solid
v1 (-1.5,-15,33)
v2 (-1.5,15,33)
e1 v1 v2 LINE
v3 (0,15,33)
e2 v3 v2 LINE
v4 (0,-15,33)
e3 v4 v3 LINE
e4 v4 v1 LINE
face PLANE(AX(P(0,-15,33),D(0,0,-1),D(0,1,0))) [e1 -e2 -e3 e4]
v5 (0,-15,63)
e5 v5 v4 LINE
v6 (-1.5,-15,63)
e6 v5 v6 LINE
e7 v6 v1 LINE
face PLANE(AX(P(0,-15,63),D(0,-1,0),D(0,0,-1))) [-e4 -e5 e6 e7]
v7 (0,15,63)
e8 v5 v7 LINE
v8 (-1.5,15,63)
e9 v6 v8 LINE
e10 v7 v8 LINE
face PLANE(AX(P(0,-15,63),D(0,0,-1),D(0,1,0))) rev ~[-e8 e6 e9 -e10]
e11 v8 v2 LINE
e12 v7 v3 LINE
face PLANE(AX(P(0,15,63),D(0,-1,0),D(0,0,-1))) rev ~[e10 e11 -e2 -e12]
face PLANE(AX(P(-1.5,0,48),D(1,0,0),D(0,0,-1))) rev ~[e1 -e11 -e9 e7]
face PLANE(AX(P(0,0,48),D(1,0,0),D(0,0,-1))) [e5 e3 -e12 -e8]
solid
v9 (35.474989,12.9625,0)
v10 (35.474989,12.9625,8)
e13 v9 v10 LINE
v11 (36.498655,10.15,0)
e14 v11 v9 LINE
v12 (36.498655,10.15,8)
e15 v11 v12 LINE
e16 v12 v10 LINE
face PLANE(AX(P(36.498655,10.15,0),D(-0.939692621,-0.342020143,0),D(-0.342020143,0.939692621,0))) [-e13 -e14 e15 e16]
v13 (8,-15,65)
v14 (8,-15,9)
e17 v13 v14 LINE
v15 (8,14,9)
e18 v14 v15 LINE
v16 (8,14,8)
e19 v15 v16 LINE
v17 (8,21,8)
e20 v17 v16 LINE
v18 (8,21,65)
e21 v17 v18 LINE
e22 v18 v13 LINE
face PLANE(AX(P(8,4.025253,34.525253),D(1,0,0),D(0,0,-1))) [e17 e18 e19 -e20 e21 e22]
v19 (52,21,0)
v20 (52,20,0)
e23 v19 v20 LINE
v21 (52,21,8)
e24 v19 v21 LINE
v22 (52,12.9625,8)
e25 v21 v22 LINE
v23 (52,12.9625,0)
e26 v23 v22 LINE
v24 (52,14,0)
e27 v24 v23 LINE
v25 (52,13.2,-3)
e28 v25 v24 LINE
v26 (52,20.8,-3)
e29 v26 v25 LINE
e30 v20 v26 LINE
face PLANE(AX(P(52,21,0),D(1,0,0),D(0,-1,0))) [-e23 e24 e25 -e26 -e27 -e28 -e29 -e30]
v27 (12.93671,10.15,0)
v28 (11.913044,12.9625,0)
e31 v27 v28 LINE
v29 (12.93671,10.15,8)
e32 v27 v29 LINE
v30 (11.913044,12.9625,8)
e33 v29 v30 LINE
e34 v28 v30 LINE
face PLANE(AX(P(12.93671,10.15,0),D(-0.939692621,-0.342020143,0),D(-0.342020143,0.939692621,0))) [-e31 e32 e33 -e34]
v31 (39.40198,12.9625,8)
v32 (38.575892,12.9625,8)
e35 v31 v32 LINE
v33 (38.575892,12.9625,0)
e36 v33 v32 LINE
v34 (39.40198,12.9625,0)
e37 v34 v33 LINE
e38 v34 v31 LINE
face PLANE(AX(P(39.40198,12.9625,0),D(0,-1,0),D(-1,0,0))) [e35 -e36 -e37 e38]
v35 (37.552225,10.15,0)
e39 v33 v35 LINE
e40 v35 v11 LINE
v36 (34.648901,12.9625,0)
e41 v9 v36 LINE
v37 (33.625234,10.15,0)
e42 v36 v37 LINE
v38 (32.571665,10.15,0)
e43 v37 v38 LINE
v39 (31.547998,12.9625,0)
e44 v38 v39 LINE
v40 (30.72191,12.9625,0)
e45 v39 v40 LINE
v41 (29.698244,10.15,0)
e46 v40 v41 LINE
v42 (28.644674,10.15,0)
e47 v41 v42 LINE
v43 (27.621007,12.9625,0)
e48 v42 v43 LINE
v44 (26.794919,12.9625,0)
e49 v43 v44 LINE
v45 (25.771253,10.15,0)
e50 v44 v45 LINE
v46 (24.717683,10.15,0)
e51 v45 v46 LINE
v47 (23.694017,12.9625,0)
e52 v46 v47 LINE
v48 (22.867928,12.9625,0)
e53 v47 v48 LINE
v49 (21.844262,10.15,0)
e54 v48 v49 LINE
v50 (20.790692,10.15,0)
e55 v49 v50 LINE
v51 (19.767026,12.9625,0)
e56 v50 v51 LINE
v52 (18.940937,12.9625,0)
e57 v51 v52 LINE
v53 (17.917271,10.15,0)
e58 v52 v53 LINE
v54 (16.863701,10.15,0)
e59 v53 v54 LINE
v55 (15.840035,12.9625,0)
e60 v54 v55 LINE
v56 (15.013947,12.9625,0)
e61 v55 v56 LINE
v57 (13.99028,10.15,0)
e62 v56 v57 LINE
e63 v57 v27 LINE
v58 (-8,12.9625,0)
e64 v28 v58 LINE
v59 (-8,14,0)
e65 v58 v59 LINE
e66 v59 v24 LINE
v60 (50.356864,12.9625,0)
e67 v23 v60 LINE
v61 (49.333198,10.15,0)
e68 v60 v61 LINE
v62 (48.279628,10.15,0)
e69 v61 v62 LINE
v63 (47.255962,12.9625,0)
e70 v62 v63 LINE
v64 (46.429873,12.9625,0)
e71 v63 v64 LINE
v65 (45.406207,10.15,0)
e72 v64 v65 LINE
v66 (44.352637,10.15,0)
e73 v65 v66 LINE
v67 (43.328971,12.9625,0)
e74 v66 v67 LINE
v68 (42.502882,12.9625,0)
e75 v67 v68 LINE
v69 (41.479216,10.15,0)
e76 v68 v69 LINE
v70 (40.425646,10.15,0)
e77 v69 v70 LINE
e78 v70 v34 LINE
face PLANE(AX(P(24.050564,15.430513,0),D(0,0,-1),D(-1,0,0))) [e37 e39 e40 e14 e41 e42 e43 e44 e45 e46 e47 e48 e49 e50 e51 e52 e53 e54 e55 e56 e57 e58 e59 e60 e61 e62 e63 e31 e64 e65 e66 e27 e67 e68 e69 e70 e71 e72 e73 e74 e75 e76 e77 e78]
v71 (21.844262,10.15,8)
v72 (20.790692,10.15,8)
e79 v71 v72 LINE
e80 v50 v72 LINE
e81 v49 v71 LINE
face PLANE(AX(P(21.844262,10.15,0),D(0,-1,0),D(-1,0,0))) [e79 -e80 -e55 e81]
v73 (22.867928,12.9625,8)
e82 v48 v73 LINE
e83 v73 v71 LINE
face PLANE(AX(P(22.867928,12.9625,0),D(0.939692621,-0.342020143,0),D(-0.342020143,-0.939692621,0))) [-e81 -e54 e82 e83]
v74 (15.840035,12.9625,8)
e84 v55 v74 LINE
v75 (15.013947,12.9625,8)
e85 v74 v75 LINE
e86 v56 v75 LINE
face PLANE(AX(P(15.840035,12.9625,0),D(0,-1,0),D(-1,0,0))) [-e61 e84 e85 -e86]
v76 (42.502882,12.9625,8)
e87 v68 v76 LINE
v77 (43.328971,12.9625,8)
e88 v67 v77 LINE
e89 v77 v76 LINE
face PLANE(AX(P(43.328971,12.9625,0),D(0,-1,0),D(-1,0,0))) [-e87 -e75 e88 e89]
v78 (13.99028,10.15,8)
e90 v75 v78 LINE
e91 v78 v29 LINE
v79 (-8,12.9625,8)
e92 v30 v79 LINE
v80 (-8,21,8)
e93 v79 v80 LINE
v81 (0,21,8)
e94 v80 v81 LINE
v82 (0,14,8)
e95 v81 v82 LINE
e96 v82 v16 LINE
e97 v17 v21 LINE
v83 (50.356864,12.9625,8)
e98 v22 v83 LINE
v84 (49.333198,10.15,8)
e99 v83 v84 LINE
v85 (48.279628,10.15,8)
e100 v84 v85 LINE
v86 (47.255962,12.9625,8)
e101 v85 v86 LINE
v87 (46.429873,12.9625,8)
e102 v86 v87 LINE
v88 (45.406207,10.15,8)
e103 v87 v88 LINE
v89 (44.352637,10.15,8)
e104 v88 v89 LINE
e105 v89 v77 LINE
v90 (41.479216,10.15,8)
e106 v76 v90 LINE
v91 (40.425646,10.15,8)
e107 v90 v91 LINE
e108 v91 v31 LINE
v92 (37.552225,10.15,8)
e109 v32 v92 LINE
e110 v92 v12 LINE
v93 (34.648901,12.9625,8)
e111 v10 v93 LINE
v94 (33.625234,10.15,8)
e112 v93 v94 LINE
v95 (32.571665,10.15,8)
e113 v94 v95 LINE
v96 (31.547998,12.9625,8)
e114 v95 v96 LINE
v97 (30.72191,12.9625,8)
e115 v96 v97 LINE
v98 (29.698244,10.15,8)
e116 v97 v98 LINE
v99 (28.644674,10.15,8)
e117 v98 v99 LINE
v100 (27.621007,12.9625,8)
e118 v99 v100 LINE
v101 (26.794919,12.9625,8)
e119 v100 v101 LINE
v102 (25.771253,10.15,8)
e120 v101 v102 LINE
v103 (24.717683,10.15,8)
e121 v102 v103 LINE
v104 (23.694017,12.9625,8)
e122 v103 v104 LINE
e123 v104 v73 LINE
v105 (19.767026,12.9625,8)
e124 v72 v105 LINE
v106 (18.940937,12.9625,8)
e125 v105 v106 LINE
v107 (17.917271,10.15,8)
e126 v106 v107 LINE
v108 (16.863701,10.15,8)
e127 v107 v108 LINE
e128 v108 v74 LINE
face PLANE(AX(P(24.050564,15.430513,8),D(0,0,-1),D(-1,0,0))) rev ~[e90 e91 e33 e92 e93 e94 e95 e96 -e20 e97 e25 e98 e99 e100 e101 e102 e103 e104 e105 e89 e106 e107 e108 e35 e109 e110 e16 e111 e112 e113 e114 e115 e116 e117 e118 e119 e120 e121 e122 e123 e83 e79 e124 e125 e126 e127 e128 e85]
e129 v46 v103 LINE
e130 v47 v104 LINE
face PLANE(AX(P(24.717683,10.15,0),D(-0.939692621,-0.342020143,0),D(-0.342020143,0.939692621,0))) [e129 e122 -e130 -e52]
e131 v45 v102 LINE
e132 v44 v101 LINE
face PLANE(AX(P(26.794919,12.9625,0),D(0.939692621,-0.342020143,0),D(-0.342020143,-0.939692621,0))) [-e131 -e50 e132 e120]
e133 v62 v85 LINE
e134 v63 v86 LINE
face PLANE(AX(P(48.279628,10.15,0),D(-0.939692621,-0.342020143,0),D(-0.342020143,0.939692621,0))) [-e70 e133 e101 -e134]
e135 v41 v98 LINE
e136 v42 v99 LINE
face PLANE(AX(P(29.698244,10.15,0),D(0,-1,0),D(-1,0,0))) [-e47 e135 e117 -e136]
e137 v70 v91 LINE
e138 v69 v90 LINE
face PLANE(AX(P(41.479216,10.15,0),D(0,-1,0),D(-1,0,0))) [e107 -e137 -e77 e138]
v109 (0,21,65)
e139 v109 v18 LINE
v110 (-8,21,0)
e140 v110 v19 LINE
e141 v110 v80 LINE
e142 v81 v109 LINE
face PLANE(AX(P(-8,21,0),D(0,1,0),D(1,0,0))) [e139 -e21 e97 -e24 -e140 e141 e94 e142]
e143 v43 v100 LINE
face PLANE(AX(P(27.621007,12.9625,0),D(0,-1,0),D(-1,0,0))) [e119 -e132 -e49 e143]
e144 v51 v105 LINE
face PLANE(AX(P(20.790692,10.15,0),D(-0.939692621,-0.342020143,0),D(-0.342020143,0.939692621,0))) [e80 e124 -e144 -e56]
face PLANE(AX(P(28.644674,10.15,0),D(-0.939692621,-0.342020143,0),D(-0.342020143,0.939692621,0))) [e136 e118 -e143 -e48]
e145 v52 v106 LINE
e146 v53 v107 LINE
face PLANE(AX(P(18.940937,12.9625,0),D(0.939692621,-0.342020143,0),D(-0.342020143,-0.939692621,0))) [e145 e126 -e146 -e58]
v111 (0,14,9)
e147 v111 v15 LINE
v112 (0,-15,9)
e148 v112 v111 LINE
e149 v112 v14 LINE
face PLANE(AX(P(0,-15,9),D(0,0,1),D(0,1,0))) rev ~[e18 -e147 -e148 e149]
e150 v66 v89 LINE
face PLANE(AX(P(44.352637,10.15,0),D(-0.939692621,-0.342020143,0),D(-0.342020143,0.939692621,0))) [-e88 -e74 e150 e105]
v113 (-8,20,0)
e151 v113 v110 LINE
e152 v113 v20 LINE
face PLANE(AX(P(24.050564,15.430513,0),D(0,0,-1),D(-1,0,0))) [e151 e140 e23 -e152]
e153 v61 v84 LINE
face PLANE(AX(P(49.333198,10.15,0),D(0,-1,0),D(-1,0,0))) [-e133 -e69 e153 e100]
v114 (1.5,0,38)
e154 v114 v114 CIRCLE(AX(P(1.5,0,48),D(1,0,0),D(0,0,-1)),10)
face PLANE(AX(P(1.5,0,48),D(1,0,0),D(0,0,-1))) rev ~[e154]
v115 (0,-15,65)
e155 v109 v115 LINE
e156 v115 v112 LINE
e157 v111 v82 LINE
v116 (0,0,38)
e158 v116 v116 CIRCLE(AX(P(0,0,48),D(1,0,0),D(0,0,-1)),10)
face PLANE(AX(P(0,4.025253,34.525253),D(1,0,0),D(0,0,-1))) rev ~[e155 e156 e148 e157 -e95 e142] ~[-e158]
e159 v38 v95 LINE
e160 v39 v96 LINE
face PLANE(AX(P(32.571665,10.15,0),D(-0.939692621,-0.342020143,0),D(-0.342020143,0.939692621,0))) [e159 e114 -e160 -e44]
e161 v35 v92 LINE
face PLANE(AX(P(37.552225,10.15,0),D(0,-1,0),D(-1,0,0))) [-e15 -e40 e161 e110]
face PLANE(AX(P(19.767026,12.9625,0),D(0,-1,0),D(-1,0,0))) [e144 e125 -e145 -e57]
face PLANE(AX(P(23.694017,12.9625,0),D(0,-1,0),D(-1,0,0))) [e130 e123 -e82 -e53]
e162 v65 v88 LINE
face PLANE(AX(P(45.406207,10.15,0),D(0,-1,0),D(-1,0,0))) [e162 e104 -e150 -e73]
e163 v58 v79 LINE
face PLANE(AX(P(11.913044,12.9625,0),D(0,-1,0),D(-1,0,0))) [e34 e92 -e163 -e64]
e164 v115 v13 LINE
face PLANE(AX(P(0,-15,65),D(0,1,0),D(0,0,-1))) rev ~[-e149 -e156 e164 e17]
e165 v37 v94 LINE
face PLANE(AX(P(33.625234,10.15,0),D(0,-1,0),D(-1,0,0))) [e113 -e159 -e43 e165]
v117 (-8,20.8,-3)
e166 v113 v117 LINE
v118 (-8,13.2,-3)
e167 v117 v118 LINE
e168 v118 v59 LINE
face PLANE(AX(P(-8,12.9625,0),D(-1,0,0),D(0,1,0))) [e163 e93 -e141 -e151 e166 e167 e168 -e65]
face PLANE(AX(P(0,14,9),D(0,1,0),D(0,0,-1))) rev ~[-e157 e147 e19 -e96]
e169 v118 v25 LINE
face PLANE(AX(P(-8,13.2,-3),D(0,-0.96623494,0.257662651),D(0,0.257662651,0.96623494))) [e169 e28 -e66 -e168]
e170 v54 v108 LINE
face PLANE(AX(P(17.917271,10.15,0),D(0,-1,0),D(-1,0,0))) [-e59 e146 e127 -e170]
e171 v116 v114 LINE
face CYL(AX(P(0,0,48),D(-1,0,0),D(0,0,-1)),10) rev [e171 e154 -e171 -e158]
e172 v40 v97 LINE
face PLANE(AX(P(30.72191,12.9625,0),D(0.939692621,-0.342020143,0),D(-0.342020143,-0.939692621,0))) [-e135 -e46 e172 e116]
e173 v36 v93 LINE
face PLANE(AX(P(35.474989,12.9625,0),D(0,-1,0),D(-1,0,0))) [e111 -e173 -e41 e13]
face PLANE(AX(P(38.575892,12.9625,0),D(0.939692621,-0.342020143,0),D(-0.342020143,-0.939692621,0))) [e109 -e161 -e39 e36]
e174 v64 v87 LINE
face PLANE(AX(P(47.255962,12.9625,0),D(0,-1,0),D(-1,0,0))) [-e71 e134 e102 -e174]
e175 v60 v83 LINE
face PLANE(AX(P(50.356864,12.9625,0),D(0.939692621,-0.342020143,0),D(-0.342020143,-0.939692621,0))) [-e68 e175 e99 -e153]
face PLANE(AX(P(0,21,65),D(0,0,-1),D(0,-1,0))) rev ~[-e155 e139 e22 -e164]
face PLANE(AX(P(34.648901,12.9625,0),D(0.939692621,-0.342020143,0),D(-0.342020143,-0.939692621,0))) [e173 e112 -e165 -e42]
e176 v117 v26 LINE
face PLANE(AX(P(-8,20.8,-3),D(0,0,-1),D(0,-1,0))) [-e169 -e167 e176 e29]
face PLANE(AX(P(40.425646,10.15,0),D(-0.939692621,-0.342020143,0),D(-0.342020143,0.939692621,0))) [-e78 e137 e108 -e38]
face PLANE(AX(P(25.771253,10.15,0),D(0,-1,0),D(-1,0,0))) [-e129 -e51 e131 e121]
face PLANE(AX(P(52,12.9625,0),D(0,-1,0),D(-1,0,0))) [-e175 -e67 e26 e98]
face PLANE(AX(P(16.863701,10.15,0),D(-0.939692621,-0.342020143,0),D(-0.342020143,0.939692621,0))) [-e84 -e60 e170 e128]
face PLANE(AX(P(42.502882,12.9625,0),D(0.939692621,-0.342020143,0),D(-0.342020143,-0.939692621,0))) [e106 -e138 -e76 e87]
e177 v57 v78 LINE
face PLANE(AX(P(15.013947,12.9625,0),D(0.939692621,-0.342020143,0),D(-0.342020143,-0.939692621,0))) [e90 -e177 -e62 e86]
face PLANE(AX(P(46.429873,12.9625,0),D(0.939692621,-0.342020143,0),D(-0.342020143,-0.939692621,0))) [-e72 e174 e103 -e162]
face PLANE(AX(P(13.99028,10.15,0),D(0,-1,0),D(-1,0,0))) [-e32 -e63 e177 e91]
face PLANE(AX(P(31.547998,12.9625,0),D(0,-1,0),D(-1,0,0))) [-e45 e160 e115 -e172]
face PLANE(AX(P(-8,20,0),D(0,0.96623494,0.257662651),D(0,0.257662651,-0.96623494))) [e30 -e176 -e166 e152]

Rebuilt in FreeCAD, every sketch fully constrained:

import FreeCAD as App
import Part
import Sketcher

V = App.Vector
Q = App.Units.Quantity


def add_polygon(sketch, points):
    """Adds a closed chain of lines whose ends are joined by coincident constraints."""
    first, n = sketch.GeometryCount, len(points)
    for a, b in zip(points, points[1:] + points[:1]):
        sketch.addGeometry(Part.LineSegment(App.Vector(*a, 0), App.Vector(*b, 0)), False)
    for i in range(n):
        sketch.addConstraint(Sketcher.Constraint("Coincident", first + i, 2, first + (i + 1) % n, 1))

doc = App.newDocument("Part")
body = doc.addObject("PartDesign::Body", "Body")

# Sketch on XY plane
sketch1 = body.newObject("Sketcher::SketchObject", "Sketch")
sketch1.AttachmentSupport = (doc.getObject("XY_Plane"), [""])
sketch1.MapMode = "FlatFace"
add_polygon(sketch1, [(52, 21), (-8, 21), (-8, 13), (11.9, 13), (12.9, 10.2), (14, 10.2), (15, 13), (15.8, 13), (16.9, 10.2), (17.9, 10.2), (18.9, 13), (19.8, 13), (20.8, 10.2), (21.8, 10.2), (22.9, 13), (23.7, 13), (24.7, 10.2), (25.8, 10.2), (26.8, 13), (27.6, 13), (28.6, 10.2), (29.7, 10.2), (30.7, 13), (31.5, 13), (32.6, 10.2), (33.6, 10.2), (34.6, 13), (35.5, 13), (36.5, 10.2), (37.6, 10.2), (38.6, 13), (39.4, 13), (40.4, 10.2), (41.5, 10.2), (42.5, 13), (43.3, 13), (44.4, 10.2), (45.4, 10.2), (46.4, 13), (47.3, 13), (48.3, 10.2), (49.3, 10.2), (50.4, 13), (52, 13)])  # lines 0-43
sketch1.addConstraint(Sketcher.Constraint("Horizontal", 0))
sketch1.addConstraint(Sketcher.Constraint("Vertical", 1))
sketch1.addConstraint(Sketcher.Constraint("Horizontal", 2))
sketch1.addConstraint(Sketcher.Constraint("Horizontal", 4))
sketch1.addConstraint(Sketcher.Constraint("Horizontal", 6))
sketch1.addConstraint(Sketcher.Constraint("Horizontal", 8))
sketch1.addConstraint(Sketcher.Constraint("Horizontal", 10))
sketch1.addConstraint(Sketcher.Constraint("Horizontal", 12))
sketch1.addConstraint(Sketcher.Constraint("Horizontal", 14))
sketch1.addConstraint(Sketcher.Constraint("Horizontal", 16))
sketch1.addConstraint(Sketcher.Constraint("Horizontal", 18))
sketch1.addConstraint(Sketcher.Constraint("Horizontal", 20))
sketch1.addConstraint(Sketcher.Constraint("Horizontal", 22))
sketch1.addConstraint(Sketcher.Constraint("Horizontal", 24))
sketch1.addConstraint(Sketcher.Constraint("Horizontal", 26))
sketch1.addConstraint(Sketcher.Constraint("Horizontal", 28))
sketch1.addConstraint(Sketcher.Constraint("Horizontal", 30))
sketch1.addConstraint(Sketcher.Constraint("Horizontal", 32))
sketch1.addConstraint(Sketcher.Constraint("Horizontal", 34))
sketch1.addConstraint(Sketcher.Constraint("Horizontal", 36))
sketch1.addConstraint(Sketcher.Constraint("Horizontal", 38))
sketch1.addConstraint(Sketcher.Constraint("Horizontal", 40))
sketch1.addConstraint(Sketcher.Constraint("Horizontal", 42))
sketch1.addConstraint(Sketcher.Constraint("Vertical", 43))
sketch1.addConstraint(Sketcher.Constraint("Parallel", 3, 7))
sketch1.addConstraint(Sketcher.Constraint("Parallel", 5, 9))
sketch1.addConstraint(Sketcher.Constraint("Parallel", 7, 11))
sketch1.addConstraint(Sketcher.Constraint("Parallel", 9, 13))
sketch1.addConstraint(Sketcher.Constraint("Parallel", 11, 15))
sketch1.addConstraint(Sketcher.Constraint("Parallel", 13, 17))
sketch1.addConstraint(Sketcher.Constraint("Parallel", 15, 19))
sketch1.addConstraint(Sketcher.Constraint("Parallel", 17, 21))
sketch1.addConstraint(Sketcher.Constraint("Parallel", 19, 23))
sketch1.addConstraint(Sketcher.Constraint("Parallel", 21, 25))
sketch1.addConstraint(Sketcher.Constraint("Parallel", 23, 27))
sketch1.addConstraint(Sketcher.Constraint("Parallel", 25, 29))
sketch1.addConstraint(Sketcher.Constraint("Parallel", 27, 31))
sketch1.addConstraint(Sketcher.Constraint("Parallel", 29, 33))
sketch1.addConstraint(Sketcher.Constraint("Parallel", 31, 35))
sketch1.addConstraint(Sketcher.Constraint("Parallel", 33, 37))
sketch1.addConstraint(Sketcher.Constraint("Parallel", 35, 39))
sketch1.addConstraint(Sketcher.Constraint("Parallel", 37, 41))
sketch1.addConstraint(Sketcher.Constraint("Horizontal", 2, 2, 5, 2))
sketch1.addConstraint(Sketcher.Constraint("Horizontal", 4, 2, 7, 2))
sketch1.addConstraint(Sketcher.Constraint("Horizontal", 6, 2, 9, 2))
sketch1.addConstraint(Sketcher.Constraint("Horizontal", 8, 2, 11, 2))
sketch1.addConstraint(Sketcher.Constraint("Horizontal", 10, 2, 13, 2))
sketch1.addConstraint(Sketcher.Constraint("Horizontal", 12, 2, 15, 2))
sketch1.addConstraint(Sketcher.Constraint("Horizontal", 14, 2, 17, 2))
sketch1.addConstraint(Sketcher.Constraint("Horizontal", 16, 2, 19, 2))
sketch1.addConstraint(Sketcher.Constraint("Horizontal", 18, 2, 21, 2))
sketch1.addConstraint(Sketcher.Constraint("Horizontal", 20, 2, 23, 2))
sketch1.addConstraint(Sketcher.Constraint("Horizontal", 22, 2, 25, 2))
sketch1.addConstraint(Sketcher.Constraint("Horizontal", 24, 2, 27, 2))
sketch1.addConstraint(Sketcher.Constraint("Horizontal", 26, 2, 29, 2))
sketch1.addConstraint(Sketcher.Constraint("Horizontal", 28, 2, 31, 2))
sketch1.addConstraint(Sketcher.Constraint("Horizontal", 30, 2, 33, 2))
sketch1.addConstraint(Sketcher.Constraint("Horizontal", 32, 2, 35, 2))
sketch1.addConstraint(Sketcher.Constraint("Horizontal", 34, 2, 37, 2))
sketch1.addConstraint(Sketcher.Constraint("Horizontal", 36, 2, 39, 2))
sketch1.addConstraint(Sketcher.Constraint("Horizontal", 38, 2, 41, 2))
sketch1.addConstraint(Sketcher.Constraint("Equal", 4, 8))
sketch1.addConstraint(Sketcher.Constraint("Equal", 6, 10))
sketch1.addConstraint(Sketcher.Constraint("Equal", 8, 12))
sketch1.addConstraint(Sketcher.Constraint("Equal", 10, 14))
sketch1.addConstraint(Sketcher.Constraint("Equal", 12, 16))
sketch1.addConstraint(Sketcher.Constraint("Equal", 14, 18))
sketch1.addConstraint(Sketcher.Constraint("Equal", 16, 20))
sketch1.addConstraint(Sketcher.Constraint("Equal", 18, 22))
sketch1.addConstraint(Sketcher.Constraint("Equal", 20, 24))
sketch1.addConstraint(Sketcher.Constraint("Equal", 22, 26))
sketch1.addConstraint(Sketcher.Constraint("Equal", 24, 28))
sketch1.addConstraint(Sketcher.Constraint("Equal", 26, 30))
sketch1.addConstraint(Sketcher.Constraint("Equal", 28, 32))
sketch1.addConstraint(Sketcher.Constraint("Equal", 30, 34))
sketch1.addConstraint(Sketcher.Constraint("Equal", 32, 36))
sketch1.addConstraint(Sketcher.Constraint("Equal", 34, 38))
sketch1.addConstraint(Sketcher.Constraint("Equal", 36, 40))
sketch1.addConstraint(Sketcher.Constraint("Equal", 3, 5))
sketch1.addConstraint(Sketcher.Constraint("DistanceX", 0, 2, 0, 1, 60.0))
sketch1.addConstraint(Sketcher.Constraint("Angle", 3, Q("-70 deg")))
sketch1.addConstraint(Sketcher.Constraint("DistanceX", 0, 2, -1, 1, 8.0))
sketch1.addConstraint(Sketcher.Constraint("DistanceY", -1, 1, 0, 2, 21.0))
sketch1.addConstraint(Sketcher.Constraint("DistanceY", -1, 1, 3, 2, 10.15))
sketch1.addConstraint(Sketcher.Constraint("Distance", 3, 2.993))
sketch1.addConstraint(Sketcher.Constraint("DistanceX", -1, 1, 22, 2, 31.547998))
sketch1.addConstraint(Sketcher.Constraint("DistanceX", 4, 1, 4, 2, 1.05357))
sketch1.addConstraint(Sketcher.Constraint("DistanceX", 6, 1, 6, 2, 0.826088))
pad1 = body.newObject("PartDesign::Pad", "Pad")
pad1.Profile = sketch1
pad1.Length = 8

# Sketch on YZ plane
sketch2 = body.newObject("Sketcher::SketchObject", "Sketch001")
sketch2.AttachmentSupport = (doc.getObject("YZ_Plane"), [""])
sketch2.MapMode = "FlatFace"
add_polygon(sketch2, [(21, 2), (21, 65), (-15, 65), (-15, 9), (14, 9), (14, 2)])  # lines 0-5
sketch2.addConstraint(Sketcher.Constraint("Vertical", 0))
sketch2.addConstraint(Sketcher.Constraint("Horizontal", 1))
sketch2.addConstraint(Sketcher.Constraint("Vertical", 2))
sketch2.addConstraint(Sketcher.Constraint("Horizontal", 3))
sketch2.addConstraint(Sketcher.Constraint("Vertical", 4))
sketch2.addConstraint(Sketcher.Constraint("Horizontal", 5))
sketch2.addConstraint(Sketcher.Constraint("Equal", 5, 4))
sketch2.addConstraint(Sketcher.Constraint("DistanceX", 1, 2, 1, 1, 36.0))
sketch2.addConstraint(Sketcher.Constraint("DistanceX", 3, 1, 3, 2, 29.0))
sketch2.addConstraint(Sketcher.Constraint("DistanceY", 0, 1, 0, 2, 63.0))
sketch2.addConstraint(Sketcher.Constraint("DistanceX", -1, 1, 0, 2, 21.0))
sketch2.addConstraint(Sketcher.Constraint("DistanceY", -1, 1, 0, 2, 65.0))
pad2 = body.newObject("PartDesign::Pad", "Pad001")
pad2.Profile = sketch2
pad2.Length = 8

# Sketch on YZ plane
sketch3 = body.newObject("Sketcher::SketchObject", "Sketch002")
sketch3.AttachmentSupport = (doc.getObject("YZ_Plane"), [""])
sketch3.MapMode = "FlatFace"
add_polygon(sketch3, [(20, 0), (14, 0), (13.2, -3), (20.8, -3)])  # lines 0-3
sketch3.addConstraint(Sketcher.Constraint("Horizontal", 0))
sketch3.addConstraint(Sketcher.Constraint("Horizontal", 2))
sketch3.addConstraint(Sketcher.Constraint("PointOnObject", 0, 2, -1))
sketch3.addConstraint(Sketcher.Constraint("Equal", 1, 3))
sketch3.addConstraint(Sketcher.Constraint("DistanceX", 0, 2, 0, 1, 6.0))
sketch3.addConstraint(Sketcher.Constraint("DistanceX", 2, 1, 2, 2, 7.6))
sketch3.addConstraint(Sketcher.Constraint("DistanceX", -1, 1, 0, 2, 14.0))
sketch3.addConstraint(Sketcher.Constraint("DistanceY", 1, 2, -1, 1, 3.0))
pad3 = body.newObject("PartDesign::Pad", "Pad002")
pad3.Profile = sketch3
pad3.Type = "TwoLengths"
pad3.Length = 52
pad3.Length2 = 8

# Sketch on YZ plane
sketch4 = body.newObject("Sketcher::SketchObject", "Sketch003")
sketch4.AttachmentSupport = (doc.getObject("YZ_Plane"), [""])
sketch4.MapMode = "FlatFace"
sketch4.addGeometry(Part.Circle(V(0, 48, 0), V(0, 0, 1), 10), False)
sketch4.addConstraint(Sketcher.Constraint("PointOnObject", 0, 3, -2))
sketch4.addConstraint(Sketcher.Constraint("Diameter", 0, 20.0))
sketch4.addConstraint(Sketcher.Constraint("DistanceY", -1, 1, 0, 3, 48.0))
pocket1 = body.newObject("PartDesign::Pocket", "Pocket")
pocket1.Profile = sketch4
pocket1.Length = 1.5
pocket1.Reversed = True
body2 = doc.addObject("PartDesign::Body", "Body001")

# Sketch on YZ plane
sketch5 = body2.newObject("Sketcher::SketchObject", "Sketch004")
sketch5.AttachmentSupport = (doc.getObject("YZ_Plane001"), [""])
sketch5.MapMode = "FlatFace"
add_polygon(sketch5, [(15, 63), (-15, 63), (-15, 33), (15, 33)])  # lines 0-3
sketch5.addConstraint(Sketcher.Constraint("Horizontal", 0))
sketch5.addConstraint(Sketcher.Constraint("Vertical", 1))
sketch5.addConstraint(Sketcher.Constraint("Horizontal", 2))
sketch5.addConstraint(Sketcher.Constraint("Vertical", 3))
sketch5.addConstraint(Sketcher.Constraint("Equal", 2, 1))
sketch5.addConstraint(Sketcher.Constraint("DistanceX", 0, 2, 0, 1, 30.0))
sketch5.addConstraint(Sketcher.Constraint("DistanceX", 0, 2, -1, 1, 15.0))
sketch5.addConstraint(Sketcher.Constraint("DistanceY", -1, 1, 0, 2, 63.0))
pad4 = body2.newObject("PartDesign::Pad", "Pad003")
pad4.Profile = sketch5
pad4.Length = 1.5
pad4.Reversed = True

doc.recompute()
